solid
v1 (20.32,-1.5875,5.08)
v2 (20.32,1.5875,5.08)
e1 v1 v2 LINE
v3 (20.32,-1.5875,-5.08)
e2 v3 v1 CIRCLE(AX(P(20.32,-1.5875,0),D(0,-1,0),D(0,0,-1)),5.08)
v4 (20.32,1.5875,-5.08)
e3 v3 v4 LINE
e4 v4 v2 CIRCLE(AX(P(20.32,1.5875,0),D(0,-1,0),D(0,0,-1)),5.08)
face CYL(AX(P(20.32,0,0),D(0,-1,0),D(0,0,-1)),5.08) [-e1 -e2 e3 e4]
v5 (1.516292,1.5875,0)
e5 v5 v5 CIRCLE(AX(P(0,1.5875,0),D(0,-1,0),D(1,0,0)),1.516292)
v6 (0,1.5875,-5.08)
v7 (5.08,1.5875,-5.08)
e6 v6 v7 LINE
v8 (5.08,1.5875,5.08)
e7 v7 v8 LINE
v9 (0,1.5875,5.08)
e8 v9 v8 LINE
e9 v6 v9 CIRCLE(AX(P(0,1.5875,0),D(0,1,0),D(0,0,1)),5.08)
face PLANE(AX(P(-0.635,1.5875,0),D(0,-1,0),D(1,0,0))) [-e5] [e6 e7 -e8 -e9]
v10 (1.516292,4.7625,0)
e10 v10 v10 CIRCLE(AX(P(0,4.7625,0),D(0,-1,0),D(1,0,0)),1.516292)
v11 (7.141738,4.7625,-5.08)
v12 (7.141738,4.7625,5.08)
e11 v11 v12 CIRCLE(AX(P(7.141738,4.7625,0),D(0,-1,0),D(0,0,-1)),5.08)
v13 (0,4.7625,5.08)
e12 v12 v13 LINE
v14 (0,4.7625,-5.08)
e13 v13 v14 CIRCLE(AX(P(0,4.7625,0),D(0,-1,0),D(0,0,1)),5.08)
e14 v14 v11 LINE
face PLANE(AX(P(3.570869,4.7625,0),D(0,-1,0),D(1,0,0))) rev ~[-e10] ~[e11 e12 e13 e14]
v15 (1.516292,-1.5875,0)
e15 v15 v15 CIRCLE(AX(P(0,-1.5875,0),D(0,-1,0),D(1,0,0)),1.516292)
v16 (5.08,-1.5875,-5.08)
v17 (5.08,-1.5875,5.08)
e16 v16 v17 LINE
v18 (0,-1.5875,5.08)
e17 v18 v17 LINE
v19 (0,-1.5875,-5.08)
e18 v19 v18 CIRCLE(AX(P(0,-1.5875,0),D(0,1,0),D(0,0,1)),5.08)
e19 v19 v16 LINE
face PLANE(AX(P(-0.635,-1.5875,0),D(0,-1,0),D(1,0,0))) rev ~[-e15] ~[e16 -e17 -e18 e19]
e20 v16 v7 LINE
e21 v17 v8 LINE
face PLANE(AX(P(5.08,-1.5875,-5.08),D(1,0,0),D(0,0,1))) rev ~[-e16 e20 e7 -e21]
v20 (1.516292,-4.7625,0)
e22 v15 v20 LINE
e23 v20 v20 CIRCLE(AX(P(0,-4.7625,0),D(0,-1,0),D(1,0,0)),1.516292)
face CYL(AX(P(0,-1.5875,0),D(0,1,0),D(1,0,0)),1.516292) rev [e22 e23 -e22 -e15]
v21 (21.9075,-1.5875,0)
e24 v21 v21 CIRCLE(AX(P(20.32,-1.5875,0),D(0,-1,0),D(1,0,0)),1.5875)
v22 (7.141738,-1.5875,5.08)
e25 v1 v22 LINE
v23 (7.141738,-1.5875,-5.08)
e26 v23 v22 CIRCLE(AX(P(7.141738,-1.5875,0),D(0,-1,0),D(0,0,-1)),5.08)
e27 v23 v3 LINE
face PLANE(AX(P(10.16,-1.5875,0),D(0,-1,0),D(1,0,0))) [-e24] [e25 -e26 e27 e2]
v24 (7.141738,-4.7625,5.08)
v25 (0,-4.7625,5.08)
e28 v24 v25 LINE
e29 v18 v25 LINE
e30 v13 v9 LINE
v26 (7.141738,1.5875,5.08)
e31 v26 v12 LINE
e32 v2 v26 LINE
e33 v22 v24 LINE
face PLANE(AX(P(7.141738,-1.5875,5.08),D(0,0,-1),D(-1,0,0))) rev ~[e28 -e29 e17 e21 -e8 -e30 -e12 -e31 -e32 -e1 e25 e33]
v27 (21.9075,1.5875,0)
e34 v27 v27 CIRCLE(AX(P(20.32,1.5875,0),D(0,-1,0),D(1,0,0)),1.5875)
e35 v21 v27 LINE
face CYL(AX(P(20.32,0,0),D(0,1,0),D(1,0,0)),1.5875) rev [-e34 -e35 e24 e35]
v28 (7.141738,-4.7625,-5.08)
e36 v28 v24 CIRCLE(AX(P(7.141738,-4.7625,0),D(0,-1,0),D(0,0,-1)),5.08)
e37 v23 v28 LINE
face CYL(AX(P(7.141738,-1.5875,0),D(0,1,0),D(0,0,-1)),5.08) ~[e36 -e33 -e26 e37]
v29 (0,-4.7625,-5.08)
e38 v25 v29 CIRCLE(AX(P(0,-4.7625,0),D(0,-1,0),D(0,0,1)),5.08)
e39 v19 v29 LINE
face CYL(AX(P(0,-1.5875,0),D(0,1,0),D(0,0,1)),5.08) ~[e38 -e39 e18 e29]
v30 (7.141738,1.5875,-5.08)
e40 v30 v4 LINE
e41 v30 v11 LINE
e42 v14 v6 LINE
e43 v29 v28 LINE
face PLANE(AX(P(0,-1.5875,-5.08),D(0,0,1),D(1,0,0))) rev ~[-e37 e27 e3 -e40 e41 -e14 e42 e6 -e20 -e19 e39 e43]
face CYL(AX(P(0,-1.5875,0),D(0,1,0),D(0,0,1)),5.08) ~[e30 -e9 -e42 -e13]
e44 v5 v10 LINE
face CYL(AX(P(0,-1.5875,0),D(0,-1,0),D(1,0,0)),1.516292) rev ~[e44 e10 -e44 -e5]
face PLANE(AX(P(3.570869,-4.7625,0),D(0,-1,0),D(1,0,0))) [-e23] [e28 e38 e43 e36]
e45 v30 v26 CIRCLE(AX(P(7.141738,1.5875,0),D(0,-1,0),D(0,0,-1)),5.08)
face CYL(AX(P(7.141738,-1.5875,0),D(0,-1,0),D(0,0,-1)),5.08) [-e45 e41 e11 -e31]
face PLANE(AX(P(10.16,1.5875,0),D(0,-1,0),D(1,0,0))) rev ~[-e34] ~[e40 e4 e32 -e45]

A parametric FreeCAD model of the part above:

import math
import FreeCAD as App
import Part
import Sketcher

V = App.Vector
Q = App.Units.Quantity

doc = App.newDocument("Part")
body = doc.addObject("PartDesign::Body", "Body")

# Sketch on XZ plane
sketch1 = body.newObject("Sketcher::SketchObject", "Sketch")
sketch1.AttachmentSupport = (doc.getObject("XZ_Plane"), [""])
sketch1.MapMode = "FlatFace"
sketch1.addGeometry(Part.LineSegment(V(20.32, 5.08, 0), V(0, 5.08, 0)), False)
sketch1.addGeometry(Part.ArcOfCircle(Part.Circle(V(0, 0, 0), V(0, 0, 1), 5.08), math.radians(90), math.radians(270)), False)
sketch1.addGeometry(Part.LineSegment(V(0, -5.08, 0), V(20.32, -5.08, 0)), False)
sketch1.addGeometry(Part.ArcOfCircle(Part.Circle(V(20.32, 0, 0), V(0, 0, 1), 5.08), math.radians(-90), math.radians(90)), False)
sketch1.addGeometry(Part.Circle(V(0, 0, 0), V(0, 0, 1), 1.5875), False)
sketch1.addGeometry(Part.Circle(V(20.32, 0, 0), V(0, 0, 1), 1.5875), False)
sketch1.addConstraint(Sketcher.Constraint("Tangent", 0, 2, 1, 1))
sketch1.addConstraint(Sketcher.Constraint("Tangent", 1, 2, 2, 1))
sketch1.addConstraint(Sketcher.Constraint("Tangent", 2, 2, 3, 1))
sketch1.addConstraint(Sketcher.Constraint("Tangent", 3, 2, 0, 1))
sketch1.addConstraint(Sketcher.Constraint("Horizontal", 0))
sketch1.addConstraint(Sketcher.Constraint("Horizontal", 2))
sketch1.addConstraint(Sketcher.Constraint("Coincident", 1, 3, -1, 1))
sketch1.addConstraint(Sketcher.Constraint("Coincident", 4, 3, -1, 1))
sketch1.addConstraint(Sketcher.Constraint("Coincident", 5, 3, 3, 3))
sketch1.addConstraint(Sketcher.Constraint("Equal", 4, 5))
sketch1.addConstraint(Sketcher.Constraint("Radius", 1, Q("0.2 in")))
sketch1.addConstraint(Sketcher.Constraint("Diameter", 4, Q("0.125 in")))
sketch1.addConstraint(Sketcher.Constraint("DistanceX", 0, 2, 0, 1, Q("0.8 in")))
pad1 = body.newObject("PartDesign::Pad", "Pad")
pad1.Profile = sketch1
pad1.Type = "TwoLengths"
pad1.Length = Q("0.0625 in")
pad1.Length2 = Q("0.0625 in")

# Sketch on XZ plane
sketch2 = body.newObject("Sketcher::SketchObject", "Sketch001")
sketch2.AttachmentSupport = (doc.getObject("XZ_Plane"), [""])
sketch2.MapMode = "FlatFace"
sketch2.AttachmentOffset = App.Placement(V(0, 0, 0.0625 * 25.4), App.Rotation())
sketch2.addGeometry(Part.LineSegment(V(7.141738, 5.08, 0), V(0, 5.08, 0)), False)
sketch2.addGeometry(Part.ArcOfCircle(Part.Circle(V(0, 0, 0), V(0, 0, 1), 5.08), math.radians(90), math.radians(270)), False)
sketch2.addGeometry(Part.LineSegment(V(0, -5.08, 0), V(7.141738, -5.08, 0)), False)
sketch2.addGeometry(Part.ArcOfCircle(Part.Circle(V(7.141738, 0, 0), V(0, 0, 1), 5.08), math.radians(-90), math.radians(90)), False)
sketch2.addGeometry(Part.Circle(V(0, 0, 0), V(0, 0, 1), 1.516292), False)
sketch2.addConstraint(Sketcher.Constraint("Tangent", 0, 2, 1, 1))
sketch2.addConstraint(Sketcher.Constraint("Tangent", 1, 2, 2, 1))
sketch2.addConstraint(Sketcher.Constraint("Tangent", 2, 2, 3, 1))
sketch2.addConstraint(Sketcher.Constraint("Tangent", 3, 2, 0, 1))
sketch2.addConstraint(Sketcher.Constraint("Horizontal", 0))
sketch2.addConstraint(Sketcher.Constraint("Horizontal", 2))
sketch2.addConstraint(Sketcher.Constraint("Coincident", 1, 3, -1, 1))
sketch2.addConstraint(Sketcher.Constraint("Coincident", 4, 3, -1, 1))
sketch2.addConstraint(Sketcher.Constraint("Radius", 1, Q("0.2 in")))
sketch2.addConstraint(Sketcher.Constraint("Diameter", 4, 3.032584))
sketch2.addConstraint(Sketcher.Constraint("DistanceX", 0, 2, 0, 1, 7.141738))
pad2 = body.newObject("PartDesign::Pad", "Pad001")
pad2.Profile = sketch2
pad2.Type = "TwoLengths"
pad2.Length = Q("0.125 in")
pad2.Length2 = Q("0.25 in")

# Sketch on XZ plane
sketch3 = body.newObject("Sketcher::SketchObject", "Sketch002")
sketch3.AttachmentSupport = (doc.getObject("XZ_Plane"), [""])
sketch3.MapMode = "FlatFace"
sketch3.AttachmentOffset = App.Placement(V(0, 0, 0.0625 * 25.4), App.Rotation())
sketch3.addGeometry(Part.LineSegment(V(-6.35, 5.08, 0), V(-6.35, -5.08, 0)), False)
sketch3.addGeometry(Part.LineSegment(V(-6.35, -5.08, 0), V(5.08, -5.08, 0)), False)
sketch3.addGeometry(Part.LineSegment(V(5.08, -5.08, 0), V(5.08, 5.08, 0)), False)
sketch3.addGeometry(Part.LineSegment(V(5.08, 5.08, 0), V(-6.35, 5.08, 0)), False)
sketch3.addConstraint(Sketcher.Constraint("Coincident", 0, 2, 1, 1))
sketch3.addConstraint(Sketcher.Constraint("Coincident", 1, 2, 2, 1))
sketch3.addConstraint(Sketcher.Constraint("Coincident", 2, 2, 3, 1))
sketch3.addConstraint(Sketcher.Constraint("Coincident", 3, 2, 0, 1))
sketch3.addConstraint(Sketcher.Constraint("Vertical", 0))
sketch3.addConstraint(Sketcher.Constraint("Horizontal", 1))
sketch3.addConstraint(Sketcher.Constraint("Vertical", 2))
sketch3.addConstraint(Sketcher.Constraint("Horizontal", 3))
sketch3.addConstraint(Sketcher.Constraint("DistanceY", 0, 2, 0, 1, Q("0.4 in")))
sketch3.addConstraint(Sketcher.Constraint("DistanceX", 1, 1, 1, 2, Q("0.45 in")))
sketch3.addConstraint(Sketcher.Constraint("DistanceY", 0, 2, -1, 1, Q("0.2 in")))
sketch3.addConstraint(Sketcher.Constraint("DistanceX", -1, 1, 1, 2, Q("0.2 in")))
pocket1 = body.newObject("PartDesign::Pocket", "Pocket")
pocket1.Profile = sketch3
pocket1.Length = Q("0.125 in")

doc.recompute()
